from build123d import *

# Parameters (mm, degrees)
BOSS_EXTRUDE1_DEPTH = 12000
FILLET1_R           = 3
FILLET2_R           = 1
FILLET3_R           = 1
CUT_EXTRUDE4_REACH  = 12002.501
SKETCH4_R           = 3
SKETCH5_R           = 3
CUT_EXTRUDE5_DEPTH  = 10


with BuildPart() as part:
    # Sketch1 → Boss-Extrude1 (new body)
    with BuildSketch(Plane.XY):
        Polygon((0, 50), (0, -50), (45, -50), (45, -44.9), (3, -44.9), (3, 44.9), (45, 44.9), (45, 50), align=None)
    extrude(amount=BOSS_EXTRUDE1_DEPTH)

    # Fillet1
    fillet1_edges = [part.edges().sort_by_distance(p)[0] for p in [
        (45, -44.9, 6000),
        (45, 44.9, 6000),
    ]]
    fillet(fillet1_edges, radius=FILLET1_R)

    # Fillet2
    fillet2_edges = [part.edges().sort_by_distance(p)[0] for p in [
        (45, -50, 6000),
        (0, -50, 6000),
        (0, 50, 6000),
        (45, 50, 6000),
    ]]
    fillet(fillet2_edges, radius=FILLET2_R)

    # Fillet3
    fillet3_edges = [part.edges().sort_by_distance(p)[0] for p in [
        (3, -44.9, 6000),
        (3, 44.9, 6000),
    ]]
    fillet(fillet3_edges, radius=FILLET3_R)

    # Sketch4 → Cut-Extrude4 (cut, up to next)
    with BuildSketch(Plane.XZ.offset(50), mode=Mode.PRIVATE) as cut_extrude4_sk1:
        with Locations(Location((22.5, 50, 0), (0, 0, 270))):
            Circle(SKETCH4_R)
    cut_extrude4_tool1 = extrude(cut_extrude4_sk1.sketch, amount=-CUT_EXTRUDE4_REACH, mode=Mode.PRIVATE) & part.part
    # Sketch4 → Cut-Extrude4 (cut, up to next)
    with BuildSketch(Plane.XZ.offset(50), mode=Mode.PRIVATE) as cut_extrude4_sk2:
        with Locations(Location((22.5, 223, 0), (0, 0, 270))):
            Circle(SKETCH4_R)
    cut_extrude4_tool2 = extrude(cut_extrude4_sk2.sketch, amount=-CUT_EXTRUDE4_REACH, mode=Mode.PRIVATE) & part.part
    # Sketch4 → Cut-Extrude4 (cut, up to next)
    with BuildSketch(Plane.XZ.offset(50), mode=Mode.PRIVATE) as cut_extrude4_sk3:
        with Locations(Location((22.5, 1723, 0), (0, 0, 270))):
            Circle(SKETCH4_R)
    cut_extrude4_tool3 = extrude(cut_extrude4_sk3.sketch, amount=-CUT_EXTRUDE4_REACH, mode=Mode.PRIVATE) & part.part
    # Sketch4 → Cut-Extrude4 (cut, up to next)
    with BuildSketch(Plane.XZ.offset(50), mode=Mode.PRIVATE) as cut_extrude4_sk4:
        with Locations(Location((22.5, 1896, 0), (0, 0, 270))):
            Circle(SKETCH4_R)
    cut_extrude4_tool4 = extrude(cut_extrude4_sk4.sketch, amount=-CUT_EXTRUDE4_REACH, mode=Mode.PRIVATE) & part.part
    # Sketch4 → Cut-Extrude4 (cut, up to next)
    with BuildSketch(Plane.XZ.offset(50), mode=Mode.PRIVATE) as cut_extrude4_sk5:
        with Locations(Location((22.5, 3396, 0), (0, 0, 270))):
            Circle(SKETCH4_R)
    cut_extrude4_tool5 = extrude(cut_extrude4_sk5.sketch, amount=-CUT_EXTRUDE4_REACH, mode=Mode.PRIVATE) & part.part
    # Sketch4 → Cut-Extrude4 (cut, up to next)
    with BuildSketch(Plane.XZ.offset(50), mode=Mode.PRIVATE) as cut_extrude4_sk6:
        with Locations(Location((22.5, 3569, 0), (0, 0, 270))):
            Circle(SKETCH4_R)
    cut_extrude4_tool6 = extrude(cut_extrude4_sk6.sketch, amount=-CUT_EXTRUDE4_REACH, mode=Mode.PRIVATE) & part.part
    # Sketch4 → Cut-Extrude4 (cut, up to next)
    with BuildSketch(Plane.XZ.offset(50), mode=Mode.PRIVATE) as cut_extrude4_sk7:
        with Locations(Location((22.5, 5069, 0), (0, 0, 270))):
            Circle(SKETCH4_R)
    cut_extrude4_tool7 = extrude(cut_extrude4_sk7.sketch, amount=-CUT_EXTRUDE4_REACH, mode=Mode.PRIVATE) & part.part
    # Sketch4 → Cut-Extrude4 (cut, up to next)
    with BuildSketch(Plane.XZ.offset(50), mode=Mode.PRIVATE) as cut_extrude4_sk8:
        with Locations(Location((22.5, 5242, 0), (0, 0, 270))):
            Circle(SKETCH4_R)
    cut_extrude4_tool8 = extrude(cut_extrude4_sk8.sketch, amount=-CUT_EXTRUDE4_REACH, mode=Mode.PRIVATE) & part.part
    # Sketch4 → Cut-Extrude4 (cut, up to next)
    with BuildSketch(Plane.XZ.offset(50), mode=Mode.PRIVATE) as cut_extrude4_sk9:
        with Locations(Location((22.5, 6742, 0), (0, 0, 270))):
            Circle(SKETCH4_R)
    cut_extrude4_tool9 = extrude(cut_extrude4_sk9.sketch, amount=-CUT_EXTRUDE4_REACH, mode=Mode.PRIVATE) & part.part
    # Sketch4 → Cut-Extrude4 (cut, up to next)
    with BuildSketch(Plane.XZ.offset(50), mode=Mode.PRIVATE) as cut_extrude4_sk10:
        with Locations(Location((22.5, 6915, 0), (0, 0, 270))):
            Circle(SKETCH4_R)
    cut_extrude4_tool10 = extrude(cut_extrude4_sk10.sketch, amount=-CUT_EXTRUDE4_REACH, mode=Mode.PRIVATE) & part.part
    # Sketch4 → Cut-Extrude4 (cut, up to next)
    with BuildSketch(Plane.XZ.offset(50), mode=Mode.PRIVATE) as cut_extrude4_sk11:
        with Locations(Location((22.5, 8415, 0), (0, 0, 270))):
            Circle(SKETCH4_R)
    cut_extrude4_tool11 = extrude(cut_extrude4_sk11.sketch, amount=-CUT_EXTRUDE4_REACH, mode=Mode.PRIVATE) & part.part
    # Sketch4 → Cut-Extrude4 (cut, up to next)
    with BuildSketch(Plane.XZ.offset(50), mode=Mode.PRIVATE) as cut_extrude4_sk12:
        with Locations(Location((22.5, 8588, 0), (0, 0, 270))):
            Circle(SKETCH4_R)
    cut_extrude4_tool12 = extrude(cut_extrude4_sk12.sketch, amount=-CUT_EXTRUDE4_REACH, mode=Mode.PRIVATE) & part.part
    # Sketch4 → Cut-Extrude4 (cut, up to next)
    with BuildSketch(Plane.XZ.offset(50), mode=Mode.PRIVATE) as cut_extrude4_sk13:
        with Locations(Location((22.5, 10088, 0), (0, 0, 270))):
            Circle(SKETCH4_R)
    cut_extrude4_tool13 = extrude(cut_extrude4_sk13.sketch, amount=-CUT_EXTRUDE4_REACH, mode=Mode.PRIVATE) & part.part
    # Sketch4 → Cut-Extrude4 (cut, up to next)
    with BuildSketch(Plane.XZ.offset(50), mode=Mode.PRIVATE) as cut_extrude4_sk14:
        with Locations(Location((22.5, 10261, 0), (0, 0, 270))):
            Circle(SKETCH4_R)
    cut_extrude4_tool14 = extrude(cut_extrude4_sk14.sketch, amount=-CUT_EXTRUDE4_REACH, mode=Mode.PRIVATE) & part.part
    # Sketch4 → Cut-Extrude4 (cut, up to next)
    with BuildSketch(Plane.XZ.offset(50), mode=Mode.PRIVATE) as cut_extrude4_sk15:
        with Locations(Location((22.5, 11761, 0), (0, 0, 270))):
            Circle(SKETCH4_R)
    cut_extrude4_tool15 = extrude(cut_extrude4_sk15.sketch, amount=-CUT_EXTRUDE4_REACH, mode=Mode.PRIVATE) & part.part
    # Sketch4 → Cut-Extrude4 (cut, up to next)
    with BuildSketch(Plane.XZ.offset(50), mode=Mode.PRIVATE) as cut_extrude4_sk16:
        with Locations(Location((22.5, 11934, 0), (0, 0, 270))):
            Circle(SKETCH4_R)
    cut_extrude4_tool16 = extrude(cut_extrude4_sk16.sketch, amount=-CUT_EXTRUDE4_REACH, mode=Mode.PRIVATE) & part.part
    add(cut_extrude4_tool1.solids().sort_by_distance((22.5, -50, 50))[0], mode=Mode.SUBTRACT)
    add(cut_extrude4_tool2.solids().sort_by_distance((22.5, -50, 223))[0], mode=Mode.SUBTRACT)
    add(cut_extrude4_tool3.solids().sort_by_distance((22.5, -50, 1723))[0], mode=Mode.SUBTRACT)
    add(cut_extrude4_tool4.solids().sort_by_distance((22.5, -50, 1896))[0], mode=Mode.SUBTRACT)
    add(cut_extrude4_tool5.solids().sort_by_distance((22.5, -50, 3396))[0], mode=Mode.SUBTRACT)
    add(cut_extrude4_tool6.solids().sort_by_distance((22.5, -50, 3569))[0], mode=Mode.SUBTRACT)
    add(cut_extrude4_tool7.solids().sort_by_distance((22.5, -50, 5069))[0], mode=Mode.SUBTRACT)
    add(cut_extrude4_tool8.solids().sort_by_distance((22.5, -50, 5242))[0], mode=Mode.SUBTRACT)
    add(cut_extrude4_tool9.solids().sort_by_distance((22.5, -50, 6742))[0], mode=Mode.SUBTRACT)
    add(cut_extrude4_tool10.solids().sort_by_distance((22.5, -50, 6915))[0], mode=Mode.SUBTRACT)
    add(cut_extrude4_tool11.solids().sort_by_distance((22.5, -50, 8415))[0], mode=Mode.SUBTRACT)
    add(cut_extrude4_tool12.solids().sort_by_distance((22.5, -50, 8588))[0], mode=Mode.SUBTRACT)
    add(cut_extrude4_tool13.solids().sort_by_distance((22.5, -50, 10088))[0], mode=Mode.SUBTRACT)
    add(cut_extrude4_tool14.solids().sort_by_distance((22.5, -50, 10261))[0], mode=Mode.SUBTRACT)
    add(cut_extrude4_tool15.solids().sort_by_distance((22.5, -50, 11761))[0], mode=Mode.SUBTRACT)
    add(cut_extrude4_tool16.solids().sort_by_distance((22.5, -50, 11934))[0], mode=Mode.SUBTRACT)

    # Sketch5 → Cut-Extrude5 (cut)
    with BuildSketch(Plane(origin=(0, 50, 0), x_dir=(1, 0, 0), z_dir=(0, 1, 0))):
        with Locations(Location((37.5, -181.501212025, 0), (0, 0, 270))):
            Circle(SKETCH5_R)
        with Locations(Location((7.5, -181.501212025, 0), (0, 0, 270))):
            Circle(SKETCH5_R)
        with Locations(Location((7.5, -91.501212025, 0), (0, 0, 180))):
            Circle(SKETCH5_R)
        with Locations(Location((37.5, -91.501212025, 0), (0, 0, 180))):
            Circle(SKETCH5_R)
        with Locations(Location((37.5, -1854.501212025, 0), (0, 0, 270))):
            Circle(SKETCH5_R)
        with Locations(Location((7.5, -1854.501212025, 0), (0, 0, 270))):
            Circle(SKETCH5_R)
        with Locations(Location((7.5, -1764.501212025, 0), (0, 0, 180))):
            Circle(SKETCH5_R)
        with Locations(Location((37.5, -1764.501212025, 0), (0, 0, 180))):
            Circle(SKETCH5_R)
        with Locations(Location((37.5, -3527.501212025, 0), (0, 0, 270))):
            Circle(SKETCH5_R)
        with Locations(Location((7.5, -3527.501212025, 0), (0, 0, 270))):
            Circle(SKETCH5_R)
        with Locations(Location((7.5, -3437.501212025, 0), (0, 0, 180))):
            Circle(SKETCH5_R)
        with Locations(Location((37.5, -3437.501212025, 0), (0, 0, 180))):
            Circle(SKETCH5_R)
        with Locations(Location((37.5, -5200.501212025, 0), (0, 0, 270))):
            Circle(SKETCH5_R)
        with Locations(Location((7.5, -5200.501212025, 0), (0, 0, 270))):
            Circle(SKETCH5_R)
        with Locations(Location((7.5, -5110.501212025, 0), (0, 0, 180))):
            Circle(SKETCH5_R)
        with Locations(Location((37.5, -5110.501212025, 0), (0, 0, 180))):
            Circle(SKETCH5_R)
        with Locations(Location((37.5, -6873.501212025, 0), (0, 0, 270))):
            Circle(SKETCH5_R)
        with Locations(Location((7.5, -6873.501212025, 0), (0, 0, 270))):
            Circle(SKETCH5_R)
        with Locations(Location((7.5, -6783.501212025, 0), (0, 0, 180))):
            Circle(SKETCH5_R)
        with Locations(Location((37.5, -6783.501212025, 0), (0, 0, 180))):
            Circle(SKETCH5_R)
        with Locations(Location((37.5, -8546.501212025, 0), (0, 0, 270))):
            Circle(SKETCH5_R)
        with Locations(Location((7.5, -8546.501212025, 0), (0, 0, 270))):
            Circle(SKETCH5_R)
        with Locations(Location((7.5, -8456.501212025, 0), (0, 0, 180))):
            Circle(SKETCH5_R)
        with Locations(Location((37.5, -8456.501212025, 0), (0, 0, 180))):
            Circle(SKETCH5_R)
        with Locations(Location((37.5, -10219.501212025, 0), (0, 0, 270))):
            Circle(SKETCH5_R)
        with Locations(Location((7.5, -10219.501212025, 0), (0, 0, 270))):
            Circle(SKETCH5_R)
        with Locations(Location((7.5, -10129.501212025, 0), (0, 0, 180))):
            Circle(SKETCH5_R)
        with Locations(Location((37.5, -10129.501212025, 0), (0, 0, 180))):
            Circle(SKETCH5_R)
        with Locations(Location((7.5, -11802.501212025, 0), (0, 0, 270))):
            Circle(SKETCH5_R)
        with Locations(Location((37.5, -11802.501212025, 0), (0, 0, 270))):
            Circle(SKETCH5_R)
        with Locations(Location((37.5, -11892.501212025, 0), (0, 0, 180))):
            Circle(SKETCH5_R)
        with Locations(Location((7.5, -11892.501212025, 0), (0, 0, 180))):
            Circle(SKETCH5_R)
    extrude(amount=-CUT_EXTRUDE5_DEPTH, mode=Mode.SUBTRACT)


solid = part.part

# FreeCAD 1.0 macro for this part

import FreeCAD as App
import Part
import Sketcher


def edges_at(feature, points):
    """Names of the edges that pass closest to the given points."""
    edges = feature.Shape.Edges
    near = lambda p: min(range(len(edges)), key=lambda i: edges[i].distToShape(Part.Vertex(*p))[0])
    return sorted({f"Edge{near(p) + 1}" for p in points})

doc = App.newDocument("Part")
params = doc.addObject("Spreadsheet::Sheet", "Params")
for row, (alias, value) in enumerate([
    ("sketch1_width", "45 mm"),
    ("sketch1_width2", "42 mm"),
    ("sketch1_height", "100 mm"),
    ("sketch1_height2", "5.1 mm"),
    ("pad1_length", "12000 mm"),
    ("fillet_radius", "3 mm"),
    ("fillet2_radius", "1 mm"),
    ("fillet3_radius", "1 mm"),
    ("sketch2_diameter", "6 mm"),
    ("sketch3_diameter", "6 mm"),
    ("sketch4_diameter", "6 mm"),
    ("sketch5_diameter", "6 mm"),
    ("sketch6_diameter", "6 mm"),
    ("sketch7_diameter", "6 mm"),
    ("sketch8_diameter", "6 mm"),
    ("sketch9_diameter", "6 mm"),
    ("sketch10_diameter", "6 mm"),
    ("sketch11_diameter", "6 mm"),
    ("sketch12_diameter", "6 mm"),
    ("sketch13_diameter", "6 mm"),
    ("sketch14_diameter", "6 mm"),
    ("sketch15_diameter", "6 mm"),
    ("sketch16_diameter", "6 mm"),
    ("sketch17_diameter", "6 mm"),
    ("sketch18_diameter", "6 mm"),
    ("pocket17_length", "10 mm"),
], start=1):
    params.set(f"A{row}", alias)
    params.set(f"B{row}", "=" + value)
    params.setAlias(f"B{row}", alias)

body = doc.addObject("PartDesign::Body", "Body")

# Sketch on XY plane
sketch1 = body.newObject("Sketcher::SketchObject", "Sketch")
sketch1.AttachmentSupport = (doc.getObject("XY_Plane"), [""])
sketch1.MapMode = "FlatFace"
sketch1.addGeometry(Part.LineSegment(App.Vector(0, 50, 0), App.Vector(0, -50, 0)), False)
sketch1.addGeometry(Part.LineSegment(App.Vector(0, -50, 0), App.Vector(45, -50, 0)), False)
sketch1.addGeometry(Part.LineSegment(App.Vector(45, -50, 0), App.Vector(45, -45, 0)), False)
sketch1.addGeometry(Part.LineSegment(App.Vector(45, -45, 0), App.Vector(3, -45, 0)), False)
sketch1.addGeometry(Part.LineSegment(App.Vector(3, -45, 0), App.Vector(3, 45, 0)), False)
sketch1.addGeometry(Part.LineSegment(App.Vector(3, 45, 0), App.Vector(45, 45, 0)), False)
sketch1.addGeometry(Part.LineSegment(App.Vector(45, 45, 0), App.Vector(45, 50, 0)), False)
sketch1.addGeometry(Part.LineSegment(App.Vector(45, 50, 0), App.Vector(0, 50, 0)), False)
sketch1.addConstraint(Sketcher.Constraint("Coincident", 0, 2, 1, 1))
sketch1.addConstraint(Sketcher.Constraint("Coincident", 1, 2, 2, 1))
sketch1.addConstraint(Sketcher.Constraint("Coincident", 2, 2, 3, 1))
sketch1.addConstraint(Sketcher.Constraint("Coincident", 3, 2, 4, 1))
sketch1.addConstraint(Sketcher.Constraint("Coincident", 4, 2, 5, 1))
sketch1.addConstraint(Sketcher.Constraint("Coincident", 5, 2, 6, 1))
sketch1.addConstraint(Sketcher.Constraint("Coincident", 6, 2, 7, 1))
sketch1.addConstraint(Sketcher.Constraint("Coincident", 7, 2, 0, 1))
sketch1.addConstraint(Sketcher.Constraint("Vertical", 0))
sketch1.addConstraint(Sketcher.Constraint("Horizontal", 1))
sketch1.addConstraint(Sketcher.Constraint("Vertical", 2))
sketch1.addConstraint(Sketcher.Constraint("Horizontal", 3))
sketch1.addConstraint(Sketcher.Constraint("Vertical", 4))
sketch1.addConstraint(Sketcher.Constraint("Horizontal", 5))
sketch1.addConstraint(Sketcher.Constraint("Vertical", 6))
sketch1.addConstraint(Sketcher.Constraint("Horizontal", 7))
sketch1.addConstraint(Sketcher.Constraint("Symmetric", 0, 2, 7, 2, -1, 1))
sketch1.addConstraint(Sketcher.Constraint("Symmetric", 2, 2, 5, 2, -1))
sketch1.addConstraint(Sketcher.Constraint("DistanceX", 1, 1, 1, 2, 45.0))
sketch1.addConstraint(Sketcher.Constraint("DistanceX", 3, 2, 3, 1, 42.0))
sketch1.addConstraint(Sketcher.Constraint("DistanceY", 0, 2, 0, 1, 100.0))
sketch1.addConstraint(Sketcher.Constraint("DistanceY", 2, 1, 2, 2, 5.1))
sketch1.setExpression("Constraints[18]", "Params.sketch1_width")
sketch1.setExpression("Constraints[19]", "Params.sketch1_width2")
sketch1.setExpression("Constraints[20]", "Params.sketch1_height")
sketch1.setExpression("Constraints[21]", "Params.sketch1_height2")
pad1 = body.newObject("PartDesign::Pad", "Pad")
pad1.Profile = sketch1
pad1.setExpression("Length", "Params.pad1_length")
doc.recompute()

fillet = body.newObject("PartDesign::Fillet", "Fillet")
fillet.Base = (pad1, edges_at(pad1, [(45, -44.9, 6000), (45, 44.9, 6000)]))
fillet.setExpression("Radius", "Params.fillet_radius")
doc.recompute()

fillet2 = body.newObject("PartDesign::Fillet", "Fillet001")
fillet2.Base = (fillet, edges_at(fillet, [
    (45, -50, 6000),
    (0, -50, 6000),
    (0, 50, 6000),
    (45, 50, 6000),
]))
fillet2.setExpression("Radius", "Params.fillet2_radius")
doc.recompute()

fillet3 = body.newObject("PartDesign::Fillet", "Fillet002")
fillet3.Base = (fillet2, edges_at(fillet2, [(3, -44.9, 6000), (3, 44.9, 6000)]))
fillet3.setExpression("Radius", "Params.fillet3_radius")

# Sketch on XZ plane
sketch2 = body.newObject("Sketcher::SketchObject", "Sketch001")
sketch2.AttachmentSupport = (doc.getObject("XZ_Plane"), [""])
sketch2.MapMode = "FlatFace"
sketch2.AttachmentOffset = App.Placement(App.Vector(0, 0, 50), App.Rotation())
sketch2.addGeometry(Part.Circle(App.Vector(22.5, 50, 0), App.Vector(0, 0, 1), 3), False)
sketch2.addConstraint(Sketcher.Constraint("Diameter", 0, 6.0))
sketch2.addConstraint(Sketcher.Constraint("DistanceY", -1, 1, 0, 3, 50.0))
sketch2.addConstraint(Sketcher.Constraint("DistanceX", -1, 1, 0, 3, 22.5))
sketch2.setExpression("Constraints[0]", "Params.sketch2_diameter")
pocket1 = body.newObject("PartDesign::Pocket", "Pocket")
pocket1.Profile = sketch2
pocket1.Type = "UpToFirst"

# Sketch on XZ plane
sketch3 = body.newObject("Sketcher::SketchObject", "Sketch002")
sketch3.AttachmentSupport = (doc.getObject("XZ_Plane"), [""])
sketch3.MapMode = "FlatFace"
sketch3.AttachmentOffset = App.Placement(App.Vector(0, 0, 50), App.Rotation())
sketch3.addGeometry(Part.Circle(App.Vector(22.5, 223, 0), App.Vector(0, 0, 1), 3), False)
sketch3.addConstraint(Sketcher.Constraint("Diameter", 0, 6.0))
sketch3.addConstraint(Sketcher.Constraint("DistanceY", -1, 1, 0, 3, 223.0))
sketch3.addConstraint(Sketcher.Constraint("DistanceX", -1, 1, 0, 3, 22.5))
sketch3.setExpression("Constraints[0]", "Params.sketch3_diameter")
pocket2 = body.newObject("PartDesign::Pocket", "Pocket001")
pocket2.Profile = sketch3
pocket2.Type = "UpToFirst"

# Sketch on XZ plane
sketch4 = body.newObject("Sketcher::SketchObject", "Sketch003")
sketch4.AttachmentSupport = (doc.getObject("XZ_Plane"), [""])
sketch4.MapMode = "FlatFace"
sketch4.AttachmentOffset = App.Placement(App.Vector(0, 0, 50), App.Rotation())
sketch4.addGeometry(Part.Circle(App.Vector(22.5, 1723, 0), App.Vector(0, 0, 1), 3), False)
sketch4.addConstraint(Sketcher.Constraint("Diameter", 0, 6.0))
sketch4.addConstraint(Sketcher.Constraint("DistanceY", -1, 1, 0, 3, 1723.0))
sketch4.addConstraint(Sketcher.Constraint("DistanceX", -1, 1, 0, 3, 22.5))
sketch4.setExpression("Constraints[0]", "Params.sketch4_diameter")
pocket3 = body.newObject("PartDesign::Pocket", "Pocket002")
pocket3.Profile = sketch4
pocket3.Type = "UpToFirst"

# Sketch on XZ plane
sketch5 = body.newObject("Sketcher::SketchObject", "Sketch004")
sketch5.AttachmentSupport = (doc.getObject("XZ_Plane"), [""])
sketch5.MapMode = "FlatFace"
sketch5.AttachmentOffset = App.Placement(App.Vector(0, 0, 50), App.Rotation())
sketch5.addGeometry(Part.Circle(App.Vector(22.5, 1896, 0), App.Vector(0, 0, 1), 3), False)
sketch5.addConstraint(Sketcher.Constraint("Diameter", 0, 6.0))
sketch5.addConstraint(Sketcher.Constraint("DistanceY", -1, 1, 0, 3, 1896.0))
sketch5.addConstraint(Sketcher.Constraint("DistanceX", -1, 1, 0, 3, 22.5))
sketch5.setExpression("Constraints[0]", "Params.sketch5_diameter")
pocket4 = body.newObject("PartDesign::Pocket", "Pocket003")
pocket4.Profile = sketch5
pocket4.Type = "UpToFirst"

# Sketch on XZ plane
sketch6 = body.newObject("Sketcher::SketchObject", "Sketch005")
sketch6.AttachmentSupport = (doc.getObject("XZ_Plane"), [""])
sketch6.MapMode = "FlatFace"
sketch6.AttachmentOffset = App.Placement(App.Vector(0, 0, 50), App.Rotation())
sketch6.addGeometry(Part.Circle(App.Vector(22.5, 3396, 0), App.Vector(0, 0, 1), 3), False)
sketch6.addConstraint(Sketcher.Constraint("Diameter", 0, 6.0))
sketch6.addConstraint(Sketcher.Constraint("DistanceY", -1, 1, 0, 3, 3396.0))
sketch6.addConstraint(Sketcher.Constraint("DistanceX", -1, 1, 0, 3, 22.5))
sketch6.setExpression("Constraints[0]", "Params.sketch6_diameter")
pocket5 = body.newObject("PartDesign::Pocket", "Pocket004")
pocket5.Profile = sketch6
pocket5.Type = "UpToFirst"

# Sketch on XZ plane
sketch7 = body.newObject("Sketcher::SketchObject", "Sketch006")
sketch7.AttachmentSupport = (doc.getObject("XZ_Plane"), [""])
sketch7.MapMode = "FlatFace"
sketch7.AttachmentOffset = App.Placement(App.Vector(0, 0, 50), App.Rotation())
sketch7.addGeometry(Part.Circle(App.Vector(22.5, 3569, 0), App.Vector(0, 0, 1), 3), False)
sketch7.addConstraint(Sketcher.Constraint("Diameter", 0, 6.0))
sketch7.addConstraint(Sketcher.Constraint("DistanceY", -1, 1, 0, 3, 3569.0))
sketch7.addConstraint(Sketcher.Constraint("DistanceX", -1, 1, 0, 3, 22.5))
sketch7.setExpression("Constraints[0]", "Params.sketch7_diameter")
pocket6 = body.newObject("PartDesign::Pocket", "Pocket005")
pocket6.Profile = sketch7
pocket6.Type = "UpToFirst"

# Sketch on XZ plane
sketch8 = body.newObject("Sketcher::SketchObject", "Sketch007")
sketch8.AttachmentSupport = (doc.getObject("XZ_Plane"), [""])
sketch8.MapMode = "FlatFace"
sketch8.AttachmentOffset = App.Placement(App.Vector(0, 0, 50), App.Rotation())
sketch8.addGeometry(Part.Circle(App.Vector(22.5, 5069, 0), App.Vector(0, 0, 1), 3), False)
sketch8.addConstraint(Sketcher.Constraint("Diameter", 0, 6.0))
sketch8.addConstraint(Sketcher.Constraint("DistanceY", -1, 1, 0, 3, 5069.0))
sketch8.addConstraint(Sketcher.Constraint("DistanceX", -1, 1, 0, 3, 22.5))
sketch8.setExpression("Constraints[0]", "Params.sketch8_diameter")
pocket7 = body.newObject("PartDesign::Pocket", "Pocket006")
pocket7.Profile = sketch8
pocket7.Type = "UpToFirst"

# Sketch on XZ plane
sketch9 = body.newObject("Sketcher::SketchObject", "Sketch008")
sketch9.AttachmentSupport = (doc.getObject("XZ_Plane"), [""])
sketch9.MapMode = "FlatFace"
sketch9.AttachmentOffset = App.Placement(App.Vector(0, 0, 50), App.Rotation())
sketch9.addGeometry(Part.Circle(App.Vector(22.5, 5242, 0), App.Vector(0, 0, 1), 3), False)
sketch9.addConstraint(Sketcher.Constraint("Diameter", 0, 6.0))
sketch9.addConstraint(Sketcher.Constraint("DistanceY", -1, 1, 0, 3, 5242.0))
sketch9.addConstraint(Sketcher.Constraint("DistanceX", -1, 1, 0, 3, 22.5))
sketch9.setExpression("Constraints[0]", "Params.sketch9_diameter")
pocket8 = body.newObject("PartDesign::Pocket", "Pocket007")
pocket8.Profile = sketch9
pocket8.Type = "UpToFirst"

# Sketch on XZ plane
sketch10 = body.newObject("Sketcher::SketchObject", "Sketch009")
sketch10.AttachmentSupport = (doc.getObject("XZ_Plane"), [""])
sketch10.MapMode = "FlatFace"
sketch10.AttachmentOffset = App.Placement(App.Vector(0, 0, 50), App.Rotation())
sketch10.addGeometry(Part.Circle(App.Vector(22.5, 6742, 0), App.Vector(0, 0, 1), 3), False)
sketch10.addConstraint(Sketcher.Constraint("Diameter", 0, 6.0))
sketch10.addConstraint(Sketcher.Constraint("DistanceY", -1, 1, 0, 3, 6742.0))
sketch10.addConstraint(Sketcher.Constraint("DistanceX", -1, 1, 0, 3, 22.5))
sketch10.setExpression("Constraints[0]", "Params.sketch10_diameter")
pocket9 = body.newObject("PartDesign::Pocket", "Pocket008")
pocket9.Profile = sketch10
pocket9.Type = "UpToFirst"

# Sketch on XZ plane
sketch11 = body.newObject("Sketcher::SketchObject", "Sketch010")
sketch11.AttachmentSupport = (doc.getObject("XZ_Plane"), [""])
sketch11.MapMode = "FlatFace"
sketch11.AttachmentOffset = App.Placement(App.Vector(0, 0, 50), App.Rotation())
sketch11.addGeometry(Part.Circle(App.Vector(22.5, 6915, 0), App.Vector(0, 0, 1), 3), False)
sketch11.addConstraint(Sketcher.Constraint("Diameter", 0, 6.0))
sketch11.addConstraint(Sketcher.Constraint("DistanceY", -1, 1, 0, 3, 6915.0))
sketch11.addConstraint(Sketcher.Constraint("DistanceX", -1, 1, 0, 3, 22.5))
sketch11.setExpression("Constraints[0]", "Params.sketch11_diameter")
pocket10 = body.newObject("PartDesign::Pocket", "Pocket009")
pocket10.Profile = sketch11
pocket10.Type = "UpToFirst"

# Sketch on XZ plane
sketch12 = body.newObject("Sketcher::SketchObject", "Sketch011")
sketch12.AttachmentSupport = (doc.getObject("XZ_Plane"), [""])
sketch12.MapMode = "FlatFace"
sketch12.AttachmentOffset = App.Placement(App.Vector(0, 0, 50), App.Rotation())
sketch12.addGeometry(Part.Circle(App.Vector(22.5, 8415, 0), App.Vector(0, 0, 1), 3), False)
sketch12.addConstraint(Sketcher.Constraint("Diameter", 0, 6.0))
sketch12.addConstraint(Sketcher.Constraint("DistanceY", -1, 1, 0, 3, 8415.0))
sketch12.addConstraint(Sketcher.Constraint("DistanceX", -1, 1, 0, 3, 22.5))
sketch12.setExpression("Constraints[0]", "Params.sketch12_diameter")
pocket11 = body.newObject("PartDesign::Pocket", "Pocket010")
pocket11.Profile = sketch12
pocket11.Type = "UpToFirst"

# Sketch on XZ plane
sketch13 = body.newObject("Sketcher::SketchObject", "Sketch012")
sketch13.AttachmentSupport = (doc.getObject("XZ_Plane"), [""])
sketch13.MapMode = "FlatFace"
sketch13.AttachmentOffset = App.Placement(App.Vector(0, 0, 50), App.Rotation())
sketch13.addGeometry(Part.Circle(App.Vector(22.5, 8588, 0), App.Vector(0, 0, 1), 3), False)
sketch13.addConstraint(Sketcher.Constraint("Diameter", 0, 6.0))
sketch13.addConstraint(Sketcher.Constraint("DistanceY", -1, 1, 0, 3, 8588.0))
sketch13.addConstraint(Sketcher.Constraint("DistanceX", -1, 1, 0, 3, 22.5))
sketch13.setExpression("Constraints[0]", "Params.sketch13_diameter")
pocket12 = body.newObject("PartDesign::Pocket", "Pocket011")
pocket12.Profile = sketch13
pocket12.Type = "UpToFirst"

# Sketch on XZ plane
sketch14 = body.newObject("Sketcher::SketchObject", "Sketch013")
sketch14.AttachmentSupport = (doc.getObject("XZ_Plane"), [""])
sketch14.MapMode = "FlatFace"
sketch14.AttachmentOffset = App.Placement(App.Vector(0, 0, 50), App.Rotation())
sketch14.addGeometry(Part.Circle(App.Vector(22.5, 10088, 0), App.Vector(0, 0, 1), 3), False)
sketch14.addConstraint(Sketcher.Constraint("Diameter", 0, 6.0))
sketch14.addConstraint(Sketcher.Constraint("DistanceY", -1, 1, 0, 3, 10088.0))
sketch14.addConstraint(Sketcher.Constraint("DistanceX", -1, 1, 0, 3, 22.5))
sketch14.setExpression("Constraints[0]", "Params.sketch14_diameter")
pocket13 = body.newObject("PartDesign::Pocket", "Pocket012")
pocket13.Profile = sketch14
pocket13.Type = "UpToFirst"

# Sketch on XZ plane
sketch15 = body.newObject("Sketcher::SketchObject", "Sketch014")
sketch15.AttachmentSupport = (doc.getObject("XZ_Plane"), [""])
sketch15.MapMode = "FlatFace"
sketch15.AttachmentOffset = App.Placement(App.Vector(0, 0, 50), App.Rotation())
sketch15.addGeometry(Part.Circle(App.Vector(22.5, 10261, 0), App.Vector(0, 0, 1), 3), False)
sketch15.addConstraint(Sketcher.Constraint("Diameter", 0, 6.0))
sketch15.addConstraint(Sketcher.Constraint("DistanceY", -1, 1, 0, 3, 10261.0))
sketch15.addConstraint(Sketcher.Constraint("DistanceX", -1, 1, 0, 3, 22.5))
sketch15.setExpression("Constraints[0]", "Params.sketch15_diameter")
pocket14 = body.newObject("PartDesign::Pocket", "Pocket013")
pocket14.Profile = sketch15
pocket14.Type = "UpToFirst"

# Sketch on XZ plane
sketch16 = body.newObject("Sketcher::SketchObject", "Sketch015")
sketch16.AttachmentSupport = (doc.getObject("XZ_Plane"), [""])
sketch16.MapMode = "FlatFace"
sketch16.AttachmentOffset = App.Placement(App.Vector(0, 0, 50), App.Rotation())
sketch16.addGeometry(Part.Circle(App.Vector(22.5, 11761, 0), App.Vector(0, 0, 1), 3), False)
sketch16.addConstraint(Sketcher.Constraint("Diameter", 0, 6.0))
sketch16.addConstraint(Sketcher.Constraint("DistanceY", -1, 1, 0, 3, 11761.0))
sketch16.addConstraint(Sketcher.Constraint("DistanceX", -1, 1, 0, 3, 22.5))
sketch16.setExpression("Constraints[0]", "Params.sketch16_diameter")
pocket15 = body.newObject("PartDesign::Pocket", "Pocket014")
pocket15.Profile = sketch16
pocket15.Type = "UpToFirst"

# Sketch on XZ plane
sketch17 = body.newObject("Sketcher::SketchObject", "Sketch016")
sketch17.AttachmentSupport = (doc.getObject("XZ_Plane"), [""])
sketch17.MapMode = "FlatFace"
sketch17.AttachmentOffset = App.Placement(App.Vector(0, 0, 50), App.Rotation())
sketch17.addGeometry(Part.Circle(App.Vector(22.5, 11934, 0), App.Vector(0, 0, 1), 3), False)
sketch17.addConstraint(Sketcher.Constraint("Diameter", 0, 6.0))
sketch17.addConstraint(Sketcher.Constraint("DistanceY", -1, 1, 0, 3, 11934.0))
sketch17.addConstraint(Sketcher.Constraint("DistanceX", -1, 1, 0, 3, 22.5))
sketch17.setExpression("Constraints[0]", "Params.sketch17_diameter")
pocket16 = body.newObject("PartDesign::Pocket", "Pocket015")
pocket16.Profile = sketch17
pocket16.Type = "UpToFirst"

# Sketch on XZ plane
sketch18 = body.newObject("Sketcher::SketchObject", "Sketch017")
sketch18.AttachmentSupport = (doc.getObject("XZ_Plane"), [""])
sketch18.MapMode = "FlatFace"
sketch18.AttachmentOffset = App.Placement(App.Vector(0, 0, -50), App.Rotation())
sketch18.addGeometry(Part.Circle(App.Vector(37.5, 181.5, 0), App.Vector(0, 0, 1), 3), False)
sketch18.addGeometry(Part.Circle(App.Vector(7.5, 181.5, 0), App.Vector(0, 0, 1), 3), False)
sketch18.addGeometry(Part.Circle(App.Vector(7.5, 91.5, 0), App.Vector(0, 0, 1), 3), False)
sketch18.addGeometry(Part.Circle(App.Vector(37.5, 91.5, 0), App.Vector(0, 0, 1), 3), False)
sketch18.addGeometry(Part.Circle(App.Vector(37.5, 1854.5, 0), App.Vector(0, 0, 1), 3), False)
sketch18.addGeometry(Part.Circle(App.Vector(7.5, 1854.5, 0), App.Vector(0, 0, 1), 3), False)
sketch18.addGeometry(Part.Circle(App.Vector(7.5, 1764.5, 0), App.Vector(0, 0, 1), 3), False)
sketch18.addGeometry(Part.Circle(App.Vector(37.5, 1764.5, 0), App.Vector(0, 0, 1), 3), False)
sketch18.addGeometry(Part.Circle(App.Vector(37.5, 3527.5, 0), App.Vector(0, 0, 1), 3), False)
sketch18.addGeometry(Part.Circle(App.Vector(7.5, 3527.5, 0), App.Vector(0, 0, 1), 3), False)
sketch18.addGeometry(Part.Circle(App.Vector(7.5, 3437.5, 0), App.Vector(0, 0, 1), 3), False)
sketch18.addGeometry(Part.Circle(App.Vector(37.5, 3437.5, 0), App.Vector(0, 0, 1), 3), False)
sketch18.addGeometry(Part.Circle(App.Vector(37.5, 5200.5, 0), App.Vector(0, 0, 1), 3), False)
sketch18.addGeometry(Part.Circle(App.Vector(7.5, 5200.5, 0), App.Vector(0, 0, 1), 3), False)
sketch18.addGeometry(Part.Circle(App.Vector(7.5, 5110.5, 0), App.Vector(0, 0, 1), 3), False)
sketch18.addGeometry(Part.Circle(App.Vector(37.5, 5110.5, 0), App.Vector(0, 0, 1), 3), False)
sketch18.addGeometry(Part.Circle(App.Vector(37.5, 6873.5, 0), App.Vector(0, 0, 1), 3), False)
sketch18.addGeometry(Part.Circle(App.Vector(7.5, 6873.5, 0), App.Vector(0, 0, 1), 3), False)
sketch18.addGeometry(Part.Circle(App.Vector(7.5, 6783.5, 0), App.Vector(0, 0, 1), 3), False)
sketch18.addGeometry(Part.Circle(App.Vector(37.5, 6783.5, 0), App.Vector(0, 0, 1), 3), False)
sketch18.addGeometry(Part.Circle(App.Vector(37.5, 8546.5, 0), App.Vector(0, 0, 1), 3), False)
sketch18.addGeometry(Part.Circle(App.Vector(7.5, 8546.5, 0), App.Vector(0, 0, 1), 3), False)
sketch18.addGeometry(Part.Circle(App.Vector(7.5, 8456.5, 0), App.Vector(0, 0, 1), 3), False)
sketch18.addGeometry(Part.Circle(App.Vector(37.5, 8456.5, 0), App.Vector(0, 0, 1), 3), False)
sketch18.addGeometry(Part.Circle(App.Vector(37.5, 10219.5, 0), App.Vector(0, 0, 1), 3), False)
sketch18.addGeometry(Part.Circle(App.Vector(7.5, 10219.5, 0), App.Vector(0, 0, 1), 3), False)
sketch18.addGeometry(Part.Circle(App.Vector(7.5, 10129.5, 0), App.Vector(0, 0, 1), 3), False)
sketch18.addGeometry(Part.Circle(App.Vector(37.5, 10129.5, 0), App.Vector(0, 0, 1), 3), False)
sketch18.addGeometry(Part.Circle(App.Vector(7.5, 11802.5, 0), App.Vector(0, 0, 1), 3), False)
sketch18.addGeometry(Part.Circle(App.Vector(37.5, 11802.5, 0), App.Vector(0, 0, 1), 3), False)
sketch18.addGeometry(Part.Circle(App.Vector(37.5, 11892.5, 0), App.Vector(0, 0, 1), 3), False)
sketch18.addGeometry(Part.Circle(App.Vector(7.5, 11892.5, 0), App.Vector(0, 0, 1), 3), False)
sketch18.addConstraint(Sketcher.Constraint("Equal", 0, 1))
sketch18.addConstraint(Sketcher.Constraint("Equal", 1, 2))
sketch18.addConstraint(Sketcher.Constraint("Equal", 2, 3))
sketch18.addConstraint(Sketcher.Constraint("Equal", 3, 4))
sketch18.addConstraint(Sketcher.Constraint("Equal", 4, 5))
sketch18.addConstraint(Sketcher.Constraint("Equal", 5, 6))
sketch18.addConstraint(Sketcher.Constraint("Equal", 6, 7))
sketch18.addConstraint(Sketcher.Constraint("Equal", 7, 8))
sketch18.addConstraint(Sketcher.Constraint("Equal", 8, 9))
sketch18.addConstraint(Sketcher.Constraint("Equal", 9, 10))
sketch18.addConstraint(Sketcher.Constraint("Equal", 10, 11))
sketch18.addConstraint(Sketcher.Constraint("Equal", 11, 12))
sketch18.addConstraint(Sketcher.Constraint("Equal", 12, 13))
sketch18.addConstraint(Sketcher.Constraint("Equal", 13, 14))
sketch18.addConstraint(Sketcher.Constraint("Equal", 14, 15))
sketch18.addConstraint(Sketcher.Constraint("Equal", 15, 16))
sketch18.addConstraint(Sketcher.Constraint("Equal", 16, 17))
sketch18.addConstraint(Sketcher.Constraint("Equal", 17, 18))
sketch18.addConstraint(Sketcher.Constraint("Equal", 18, 19))
sketch18.addConstraint(Sketcher.Constraint("Equal", 19, 20))
sketch18.addConstraint(Sketcher.Constraint("Equal", 20, 21))
sketch18.addConstraint(Sketcher.Constraint("Equal", 21, 22))
sketch18.addConstraint(Sketcher.Constraint("Equal", 22, 23))
sketch18.addConstraint(Sketcher.Constraint("Equal", 23, 24))
sketch18.addConstraint(Sketcher.Constraint("Equal", 24, 25))
sketch18.addConstraint(Sketcher.Constraint("Equal", 25, 26))
sketch18.addConstraint(Sketcher.Constraint("Equal", 26, 27))
sketch18.addConstraint(Sketcher.Constraint("Equal", 27, 28))
sketch18.addConstraint(Sketcher.Constraint("Equal", 28, 29))
sketch18.addConstraint(Sketcher.Constraint("Equal", 29, 30))
sketch18.addConstraint(Sketcher.Constraint("Equal", 30, 31))
sketch18.addConstraint(Sketcher.Constraint("Horizontal", 0, 3, 1, 3))
sketch18.addConstraint(Sketcher.Constraint("Horizontal", 2, 3, 3, 3))
sketch18.addConstraint(Sketcher.Constraint("Horizontal", 4, 3, 5, 3))
sketch18.addConstraint(Sketcher.Constraint("Horizontal", 6, 3, 7, 3))
sketch18.addConstraint(Sketcher.Constraint("Horizontal", 8, 3, 9, 3))
sketch18.addConstraint(Sketcher.Constraint("Horizontal", 10, 3, 11, 3))
sketch18.addConstraint(Sketcher.Constraint("Horizontal", 12, 3, 13, 3))
sketch18.addConstraint(Sketcher.Constraint("Horizontal", 14, 3, 15, 3))
sketch18.addConstraint(Sketcher.Constraint("Horizontal", 16, 3, 17, 3))
sketch18.addConstraint(Sketcher.Constraint("Horizontal", 18, 3, 19, 3))
sketch18.addConstraint(Sketcher.Constraint("Horizontal", 20, 3, 21, 3))
sketch18.addConstraint(Sketcher.Constraint("Horizontal", 22, 3, 23, 3))
sketch18.addConstraint(Sketcher.Constraint("Horizontal", 24, 3, 25, 3))
sketch18.addConstraint(Sketcher.Constraint("Horizontal", 26, 3, 27, 3))
sketch18.addConstraint(Sketcher.Constraint("Horizontal", 28, 3, 29, 3))
sketch18.addConstraint(Sketcher.Constraint("Horizontal", 30, 3, 31, 3))
sketch18.addConstraint(Sketcher.Constraint("Vertical", 1, 3, 2, 3))
sketch18.addConstraint(Sketcher.Constraint("Vertical", 0, 3, 3, 3))
sketch18.addConstraint(Sketcher.Constraint("Vertical", 3, 3, 4, 3))
sketch18.addConstraint(Sketcher.Constraint("Vertical", 2, 3, 5, 3))
sketch18.addConstraint(Sketcher.Constraint("Vertical", 5, 3, 6, 3))
sketch18.addConstraint(Sketcher.Constraint("Vertical", 4, 3, 7, 3))
sketch18.addConstraint(Sketcher.Constraint("Vertical", 7, 3, 8, 3))
sketch18.addConstraint(Sketcher.Constraint("Vertical", 6, 3, 9, 3))
sketch18.addConstraint(Sketcher.Constraint("Vertical", 9, 3, 10, 3))
sketch18.addConstraint(Sketcher.Constraint("Vertical", 8, 3, 11, 3))
sketch18.addConstraint(Sketcher.Constraint("Vertical", 11, 3, 12, 3))
sketch18.addConstraint(Sketcher.Constraint("Vertical", 10, 3, 13, 3))
sketch18.addConstraint(Sketcher.Constraint("Vertical", 13, 3, 14, 3))
sketch18.addConstraint(Sketcher.Constraint("Vertical", 12, 3, 15, 3))
sketch18.addConstraint(Sketcher.Constraint("Vertical", 15, 3, 16, 3))
sketch18.addConstraint(Sketcher.Constraint("Vertical", 14, 3, 17, 3))
sketch18.addConstraint(Sketcher.Constraint("Vertical", 17, 3, 18, 3))
sketch18.addConstraint(Sketcher.Constraint("Vertical", 16, 3, 19, 3))
sketch18.addConstraint(Sketcher.Constraint("Vertical", 19, 3, 20, 3))
sketch18.addConstraint(Sketcher.Constraint("Vertical", 18, 3, 21, 3))
sketch18.addConstraint(Sketcher.Constraint("Vertical", 21, 3, 22, 3))
sketch18.addConstraint(Sketcher.Constraint("Vertical", 20, 3, 23, 3))
sketch18.addConstraint(Sketcher.Constraint("Vertical", 23, 3, 24, 3))
sketch18.addConstraint(Sketcher.Constraint("Vertical", 22, 3, 25, 3))
sketch18.addConstraint(Sketcher.Constraint("Vertical", 25, 3, 26, 3))
sketch18.addConstraint(Sketcher.Constraint("Vertical", 24, 3, 27, 3))
sketch18.addConstraint(Sketcher.Constraint("Vertical", 26, 3, 28, 3))
sketch18.addConstraint(Sketcher.Constraint("Vertical", 27, 3, 29, 3))
sketch18.addConstraint(Sketcher.Constraint("Vertical", 29, 3, 30, 3))
sketch18.addConstraint(Sketcher.Constraint("Vertical", 28, 3, 31, 3))
sketch18.addConstraint(Sketcher.Constraint("Diameter", 0, 6.0))
sketch18.addConstraint(Sketcher.Constraint("DistanceX", 1, 3, 0, 3, 30.0))
sketch18.addConstraint(Sketcher.Constraint("DistanceY", 2, 3, 1, 3, 90.0))
sketch18.addConstraint(Sketcher.Constraint("DistanceY", 0, 3, 4, 3, 1673.0))
sketch18.addConstraint(Sketcher.Constraint("DistanceY", 6, 3, 5, 3, 90.0))
sketch18.addConstraint(Sketcher.Constraint("DistanceY", 4, 3, 8, 3, 1673.0))
sketch18.addConstraint(Sketcher.Constraint("DistanceY", 10, 3, 9, 3, 90.0))
sketch18.addConstraint(Sketcher.Constraint("DistanceY", 8, 3, 12, 3, 1673.0))
sketch18.addConstraint(Sketcher.Constraint("DistanceY", 14, 3, 13, 3, 90.0))
sketch18.addConstraint(Sketcher.Constraint("DistanceY", 12, 3, 16, 3, 1673.0))
sketch18.addConstraint(Sketcher.Constraint("DistanceY", 18, 3, 17, 3, 90.0))
sketch18.addConstraint(Sketcher.Constraint("DistanceY", 16, 3, 20, 3, 1673.0))
sketch18.addConstraint(Sketcher.Constraint("DistanceY", 22, 3, 21, 3, 90.0))
sketch18.addConstraint(Sketcher.Constraint("DistanceY", 20, 3, 24, 3, 1673.0))
sketch18.addConstraint(Sketcher.Constraint("DistanceY", 26, 3, 25, 3, 90.0))
sketch18.addConstraint(Sketcher.Constraint("DistanceY", 25, 3, 28, 3, 1583.0))
sketch18.addConstraint(Sketcher.Constraint("DistanceY", 29, 3, 30, 3, 90.0))
sketch18.addConstraint(Sketcher.Constraint("DistanceX", -1, 1, 0, 3, 37.5))
sketch18.addConstraint(Sketcher.Constraint("DistanceY", -1, 1, 0, 3, 181.501212))
sketch18.setExpression("Constraints[77]", "Params.sketch18_diameter")
pocket17 = body.newObject("PartDesign::Pocket", "Pocket016")
pocket17.Profile = sketch18
pocket17.setExpression("Length", "Params.pocket17_length")
pocket17.Reversed = True

doc.recompute()
